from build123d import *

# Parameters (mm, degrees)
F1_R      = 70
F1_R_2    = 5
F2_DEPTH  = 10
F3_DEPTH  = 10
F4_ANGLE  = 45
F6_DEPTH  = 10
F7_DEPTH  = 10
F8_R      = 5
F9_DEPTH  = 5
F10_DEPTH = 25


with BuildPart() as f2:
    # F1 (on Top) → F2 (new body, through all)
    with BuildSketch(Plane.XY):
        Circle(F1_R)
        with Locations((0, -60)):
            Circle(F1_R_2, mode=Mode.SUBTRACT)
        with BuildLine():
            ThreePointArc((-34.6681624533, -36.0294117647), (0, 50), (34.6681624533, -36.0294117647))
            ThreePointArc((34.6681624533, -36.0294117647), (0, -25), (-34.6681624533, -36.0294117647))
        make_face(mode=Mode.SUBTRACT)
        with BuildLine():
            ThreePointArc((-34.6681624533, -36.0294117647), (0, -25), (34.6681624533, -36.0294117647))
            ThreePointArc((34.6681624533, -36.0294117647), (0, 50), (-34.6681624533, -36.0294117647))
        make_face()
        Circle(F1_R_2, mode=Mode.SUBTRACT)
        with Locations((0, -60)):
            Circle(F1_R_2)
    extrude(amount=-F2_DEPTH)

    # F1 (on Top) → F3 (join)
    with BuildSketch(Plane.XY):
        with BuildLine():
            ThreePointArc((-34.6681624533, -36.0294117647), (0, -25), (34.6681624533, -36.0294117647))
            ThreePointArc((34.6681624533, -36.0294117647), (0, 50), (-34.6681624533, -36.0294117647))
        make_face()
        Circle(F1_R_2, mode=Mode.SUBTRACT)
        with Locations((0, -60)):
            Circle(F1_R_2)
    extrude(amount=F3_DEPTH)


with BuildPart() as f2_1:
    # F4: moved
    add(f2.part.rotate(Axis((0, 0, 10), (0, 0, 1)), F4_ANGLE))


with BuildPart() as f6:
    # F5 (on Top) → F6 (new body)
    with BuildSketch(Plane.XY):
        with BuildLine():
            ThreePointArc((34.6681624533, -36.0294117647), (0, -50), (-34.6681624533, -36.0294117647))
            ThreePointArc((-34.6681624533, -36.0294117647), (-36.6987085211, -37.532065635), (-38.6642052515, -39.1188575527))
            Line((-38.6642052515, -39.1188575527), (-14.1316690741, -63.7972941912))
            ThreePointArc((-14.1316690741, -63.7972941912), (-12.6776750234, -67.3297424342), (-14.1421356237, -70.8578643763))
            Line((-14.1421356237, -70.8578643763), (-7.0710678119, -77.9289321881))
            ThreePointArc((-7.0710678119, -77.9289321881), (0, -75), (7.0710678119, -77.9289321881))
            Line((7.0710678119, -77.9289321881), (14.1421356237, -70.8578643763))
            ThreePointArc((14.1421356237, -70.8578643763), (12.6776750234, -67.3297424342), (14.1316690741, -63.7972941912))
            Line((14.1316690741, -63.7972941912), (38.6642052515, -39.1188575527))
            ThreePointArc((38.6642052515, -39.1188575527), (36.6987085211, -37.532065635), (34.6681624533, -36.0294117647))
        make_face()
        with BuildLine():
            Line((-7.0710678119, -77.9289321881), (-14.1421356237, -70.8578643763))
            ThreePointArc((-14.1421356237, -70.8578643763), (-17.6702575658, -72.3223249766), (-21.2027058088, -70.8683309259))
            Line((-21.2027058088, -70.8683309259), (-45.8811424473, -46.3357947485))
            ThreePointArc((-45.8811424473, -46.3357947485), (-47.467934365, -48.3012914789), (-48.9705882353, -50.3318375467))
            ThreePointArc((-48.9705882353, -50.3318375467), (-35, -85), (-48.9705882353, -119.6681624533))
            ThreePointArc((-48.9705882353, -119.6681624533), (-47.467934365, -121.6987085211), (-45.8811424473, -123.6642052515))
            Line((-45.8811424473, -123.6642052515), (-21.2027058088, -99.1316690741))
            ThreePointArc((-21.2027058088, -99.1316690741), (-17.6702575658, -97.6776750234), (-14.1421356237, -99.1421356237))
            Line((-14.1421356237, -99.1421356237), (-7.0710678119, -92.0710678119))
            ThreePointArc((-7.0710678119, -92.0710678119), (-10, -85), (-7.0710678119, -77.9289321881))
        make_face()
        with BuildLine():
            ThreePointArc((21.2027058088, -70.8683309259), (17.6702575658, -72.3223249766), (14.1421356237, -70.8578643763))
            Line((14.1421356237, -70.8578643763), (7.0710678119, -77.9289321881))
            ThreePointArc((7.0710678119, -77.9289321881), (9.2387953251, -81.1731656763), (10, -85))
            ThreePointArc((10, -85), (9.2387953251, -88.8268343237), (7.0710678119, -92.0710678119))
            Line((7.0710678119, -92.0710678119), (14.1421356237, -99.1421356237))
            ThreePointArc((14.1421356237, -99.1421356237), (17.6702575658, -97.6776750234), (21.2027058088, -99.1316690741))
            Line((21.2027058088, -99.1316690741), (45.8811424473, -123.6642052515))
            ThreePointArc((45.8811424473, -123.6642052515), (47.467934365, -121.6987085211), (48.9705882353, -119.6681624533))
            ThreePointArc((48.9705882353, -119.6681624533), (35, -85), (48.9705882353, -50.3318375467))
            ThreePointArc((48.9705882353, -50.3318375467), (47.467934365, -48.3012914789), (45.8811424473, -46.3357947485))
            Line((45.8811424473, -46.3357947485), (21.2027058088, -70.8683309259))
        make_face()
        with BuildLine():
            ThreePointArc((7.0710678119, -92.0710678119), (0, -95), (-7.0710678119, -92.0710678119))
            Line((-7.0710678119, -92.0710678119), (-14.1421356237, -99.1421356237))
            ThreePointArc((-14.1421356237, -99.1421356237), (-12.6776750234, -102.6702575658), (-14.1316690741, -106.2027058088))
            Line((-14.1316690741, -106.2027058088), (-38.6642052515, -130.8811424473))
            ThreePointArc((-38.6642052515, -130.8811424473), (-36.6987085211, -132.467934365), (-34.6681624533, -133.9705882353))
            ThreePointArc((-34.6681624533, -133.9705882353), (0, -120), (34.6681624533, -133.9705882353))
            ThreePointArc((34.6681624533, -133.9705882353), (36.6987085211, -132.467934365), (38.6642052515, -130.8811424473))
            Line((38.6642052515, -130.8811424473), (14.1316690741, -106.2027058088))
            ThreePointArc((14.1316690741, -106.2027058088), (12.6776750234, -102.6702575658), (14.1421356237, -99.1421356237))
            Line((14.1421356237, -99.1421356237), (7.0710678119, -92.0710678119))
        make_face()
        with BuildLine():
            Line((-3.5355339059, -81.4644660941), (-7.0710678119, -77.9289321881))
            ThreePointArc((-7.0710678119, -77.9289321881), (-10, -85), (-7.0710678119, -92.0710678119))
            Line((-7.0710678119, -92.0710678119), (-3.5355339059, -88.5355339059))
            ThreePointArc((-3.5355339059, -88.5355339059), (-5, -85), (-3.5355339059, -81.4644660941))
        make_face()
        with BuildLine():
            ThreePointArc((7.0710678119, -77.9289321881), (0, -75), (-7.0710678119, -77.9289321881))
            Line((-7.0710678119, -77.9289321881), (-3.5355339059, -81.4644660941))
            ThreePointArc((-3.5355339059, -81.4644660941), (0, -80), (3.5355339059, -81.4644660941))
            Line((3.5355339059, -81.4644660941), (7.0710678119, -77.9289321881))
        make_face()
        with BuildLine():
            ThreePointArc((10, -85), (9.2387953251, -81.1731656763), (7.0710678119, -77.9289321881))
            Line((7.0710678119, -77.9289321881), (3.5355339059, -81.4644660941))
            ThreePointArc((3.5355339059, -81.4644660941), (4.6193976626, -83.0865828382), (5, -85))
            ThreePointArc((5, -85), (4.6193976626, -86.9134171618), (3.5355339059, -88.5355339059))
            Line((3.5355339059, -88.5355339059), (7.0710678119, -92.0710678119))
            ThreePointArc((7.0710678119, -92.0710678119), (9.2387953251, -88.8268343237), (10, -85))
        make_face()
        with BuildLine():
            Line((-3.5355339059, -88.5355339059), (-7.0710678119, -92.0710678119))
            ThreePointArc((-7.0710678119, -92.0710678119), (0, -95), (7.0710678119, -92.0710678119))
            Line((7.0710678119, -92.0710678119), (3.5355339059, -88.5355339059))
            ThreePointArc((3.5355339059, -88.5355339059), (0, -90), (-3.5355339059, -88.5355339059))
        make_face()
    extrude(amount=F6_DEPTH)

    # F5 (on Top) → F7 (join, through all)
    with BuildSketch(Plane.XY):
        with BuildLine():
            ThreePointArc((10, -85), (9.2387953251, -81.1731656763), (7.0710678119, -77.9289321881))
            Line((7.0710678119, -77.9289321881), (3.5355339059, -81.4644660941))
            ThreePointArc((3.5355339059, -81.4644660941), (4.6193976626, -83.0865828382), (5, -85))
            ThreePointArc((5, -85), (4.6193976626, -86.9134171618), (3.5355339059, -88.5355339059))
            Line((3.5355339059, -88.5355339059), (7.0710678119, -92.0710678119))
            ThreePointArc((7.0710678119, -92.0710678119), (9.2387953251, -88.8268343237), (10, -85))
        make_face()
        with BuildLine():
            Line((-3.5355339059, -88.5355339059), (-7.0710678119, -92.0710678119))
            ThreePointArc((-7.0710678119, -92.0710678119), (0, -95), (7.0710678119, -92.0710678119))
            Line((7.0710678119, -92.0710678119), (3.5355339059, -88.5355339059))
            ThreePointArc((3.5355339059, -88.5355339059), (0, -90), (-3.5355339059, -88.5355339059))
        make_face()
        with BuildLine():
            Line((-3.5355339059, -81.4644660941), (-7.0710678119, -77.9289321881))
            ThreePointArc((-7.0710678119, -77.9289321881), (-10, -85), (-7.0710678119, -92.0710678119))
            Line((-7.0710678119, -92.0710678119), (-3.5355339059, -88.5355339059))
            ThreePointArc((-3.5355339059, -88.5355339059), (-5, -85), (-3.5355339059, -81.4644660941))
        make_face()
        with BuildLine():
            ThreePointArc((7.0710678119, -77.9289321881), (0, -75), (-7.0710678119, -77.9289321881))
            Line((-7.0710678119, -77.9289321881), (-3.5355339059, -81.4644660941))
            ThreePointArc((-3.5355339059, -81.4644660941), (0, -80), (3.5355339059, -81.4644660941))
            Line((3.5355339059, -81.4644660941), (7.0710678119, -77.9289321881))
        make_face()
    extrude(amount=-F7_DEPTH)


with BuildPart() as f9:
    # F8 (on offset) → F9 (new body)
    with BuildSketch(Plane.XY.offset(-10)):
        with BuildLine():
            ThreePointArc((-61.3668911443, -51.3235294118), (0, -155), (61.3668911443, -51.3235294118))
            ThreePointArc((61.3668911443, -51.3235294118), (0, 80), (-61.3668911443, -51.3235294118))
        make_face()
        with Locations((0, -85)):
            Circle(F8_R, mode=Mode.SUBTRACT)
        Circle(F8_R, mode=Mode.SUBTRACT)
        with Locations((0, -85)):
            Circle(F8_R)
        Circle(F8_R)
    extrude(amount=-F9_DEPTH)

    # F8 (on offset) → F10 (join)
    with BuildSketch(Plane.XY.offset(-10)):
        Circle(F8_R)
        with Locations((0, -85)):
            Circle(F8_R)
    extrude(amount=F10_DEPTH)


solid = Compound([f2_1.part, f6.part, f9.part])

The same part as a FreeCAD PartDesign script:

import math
import FreeCAD as App
import Part
import Sketcher

V = App.Vector

doc = App.newDocument("Part")
body = doc.addObject("PartDesign::Body", "Body")

# Sketch on XY plane
sketch1 = body.newObject("Sketcher::SketchObject", "Sketch")
sketch1.AttachmentSupport = (doc.getObject("XY_Plane"), [""])
sketch1.MapMode = "FlatFace"
sketch1.addGeometry([
    Part.Circle(V(0, 0, 0), V(0, 0, 1), 70),
    Part.Circle(V(0, 0, 0), V(0, 0, 1), 5),
], False)
sketch1.addConstraint([
    Sketcher.Constraint("Coincident", 0, 3, -1, 1),
    Sketcher.Constraint("Coincident", 1, 3, -1, 1),
    Sketcher.Constraint("Diameter", 0, 140.0),
    Sketcher.Constraint("Diameter", 1, 10.0),
])
pad1 = body.newObject("PartDesign::Pad", "Pad")
pad1.Profile = sketch1
pad1.Length = 10
pad1.Reversed = True

# Sketch on XY plane
sketch2 = body.newObject("Sketcher::SketchObject", "Sketch001")
sketch2.AttachmentSupport = (doc.getObject("XY_Plane"), [""])
sketch2.MapMode = "FlatFace"
sketch2.addGeometry([
    Part.ArcOfCircle(Part.Circle(V(0, -85, 0), V(0, 0, 1), 60), math.radians(55), math.radians(125)),
    Part.ArcOfCircle(Part.Circle(V(0, 0, 0), V(0, 0, 1), 50), math.radians(-46), math.radians(226)),
    Part.Circle(V(0, 0, 0), V(0, 0, 1), 5),
    Part.Circle(V(0, -60, 0), V(0, 0, 1), 5),
], False)
sketch2.addConstraint([
    Sketcher.Constraint("Coincident", 0, 1, 1, 1),
    Sketcher.Constraint("Coincident", 1, 2, 0, 2),
    Sketcher.Constraint("Coincident", 1, 3, -1, 1),
    Sketcher.Constraint("Coincident", 2, 3, -1, 1),
    Sketcher.Constraint("Equal", 2, 3),
    Sketcher.Constraint("PointOnObject", 0, 3, -2),
    Sketcher.Constraint("PointOnObject", 3, 3, -2),
    Sketcher.Constraint("Diameter", 2, 10.0),
    Sketcher.Constraint("Radius", 0, 60.0),
    Sketcher.Constraint("Radius", 1, 50.0),
    Sketcher.Constraint("DistanceY", 0, 3, -1, 1, 85.0),
    Sketcher.Constraint("DistanceY", 3, 3, -1, 1, 60.0),
])
pad2 = body.newObject("PartDesign::Pad", "Pad001")
pad2.Profile = sketch2
pad2.Length = 10
body2 = doc.addObject("PartDesign::Body", "Body001")
doc.recompute()

body.Placement = App.Placement(V(0, 0, 0), App.Rotation(V(0, 0, 1), 45))
boolean = body2.newObject("PartDesign::Boolean", "Boolean")
boolean.Type = "Fuse"
boolean.addObjects([body])
body3 = doc.addObject("PartDesign::Body", "Body002")

# Sketch on XY plane
sketch3 = body3.newObject("Sketcher::SketchObject", "Sketch002")
sketch3.AttachmentSupport = (doc.getObject("XY_Plane002"), [""])
sketch3.MapMode = "FlatFace"
sketch3.addGeometry([
    Part.ArcOfCircle(Part.Circle(V(0, 0, 0), V(0, 0, 1), 50), math.radians(-134), math.radians(-46)),  # 0
    Part.ArcOfCircle(Part.Circle(V(0, -85, 0), V(0, 0, 1), 60), math.radians(125.3), math.radians(130.12)),  # 1
    Part.LineSegment(V(-38.7, -39.1, 0), V(-14.1, -63.8, 0)),  # 2
    Part.ArcOfCircle(Part.Circle(V(-17.7, -67.3, 0), V(0, 0, 1), 5), math.radians(-45), math.radians(45)),  # 3
    Part.ArcOfCircle(Part.Circle(V(-17.7, -67.3, 0), V(0, 0, 1), 5), math.radians(-135), math.radians(-45)),  # 4
    Part.LineSegment(V(-21.2, -70.9, 0), V(-45.9, -46.3, 0)),  # 5
    Part.ArcOfCircle(Part.Circle(V(0, -85, 0), V(0, 0, 1), 60), math.radians(139.88), math.radians(144.7)),  # 6
    Part.ArcOfCircle(Part.Circle(V(-85, -85, 0), V(0, 0, 1), 50), math.radians(-44), math.radians(44)),  # 7
    Part.ArcOfCircle(Part.Circle(V(0, -85, 0), V(0, 0, 1), 60), math.radians(-144.7), math.radians(-139.88)),  # 8
    Part.LineSegment(V(-45.9, -123.7, 0), V(-21.2, -99.1, 0)),  # 9
    Part.ArcOfCircle(Part.Circle(V(-17.7, -102.7, 0), V(0, 0, 1), 5), math.radians(45), math.radians(135)),  # 10
    Part.ArcOfCircle(Part.Circle(V(-17.7, -102.7, 0), V(0, 0, 1), 5), math.radians(-45), math.radians(45)),  # 11
    Part.LineSegment(V(-14.1, -106.2, 0), V(-38.7, -130.9, 0)),  # 12
    Part.ArcOfCircle(Part.Circle(V(0, -85, 0), V(0, 0, 1), 60), math.radians(-130.12), math.radians(-125.3)),  # 13
    Part.ArcOfCircle(Part.Circle(V(0, -170, 0), V(0, 0, 1), 50), math.radians(46), math.radians(134)),  # 14
    Part.ArcOfCircle(Part.Circle(V(0, -85, 0), V(0, 0, 1), 60), math.radians(-54.7), math.radians(-49.88)),  # 15
    Part.LineSegment(V(38.7, -130.9, 0), V(14.1, -106.2, 0)),  # 16
    Part.ArcOfCircle(Part.Circle(V(17.7, -102.7, 0), V(0, 0, 1), 5), math.radians(135), math.radians(225)),  # 17
    Part.ArcOfCircle(Part.Circle(V(17.7, -102.7, 0), V(0, 0, 1), 5), math.radians(45), math.radians(135)),  # 18
    Part.LineSegment(V(21.2, -99.1, 0), V(45.9, -123.7, 0)),  # 19
    Part.ArcOfCircle(Part.Circle(V(0, -85, 0), V(0, 0, 1), 60), math.radians(-40.12), math.radians(-35.3)),  # 20
    Part.ArcOfCircle(Part.Circle(V(85, -85, 0), V(0, 0, 1), 50), math.radians(136), math.radians(224)),  # 21
    Part.ArcOfCircle(Part.Circle(V(0, -85, 0), V(0, 0, 1), 60), math.radians(35.3), math.radians(40.12)),  # 22
    Part.LineSegment(V(45.9, -46.3, 0), V(21.2, -70.9, 0)),  # 23
    Part.ArcOfCircle(Part.Circle(V(17.7, -67.3, 0), V(0, 0, 1), 5), math.radians(-135), math.radians(-45)),  # 24
    Part.ArcOfCircle(Part.Circle(V(17.7, -67.3, 0), V(0, 0, 1), 5), math.radians(135), math.radians(225)),  # 25
    Part.LineSegment(V(14.1, -63.8, 0), V(38.7, -39.1, 0)),  # 26
    Part.ArcOfCircle(Part.Circle(V(0, -85, 0), V(0, 0, 1), 60), math.radians(49.88), math.radians(54.7)),  # 27
    Part.ArcOfCircle(Part.Circle(V(0, -85, 0), V(0, 0, 1), 5), math.radians(135), math.radians(225)),  # 28
    Part.ArcOfCircle(Part.Circle(V(0, -85, 0), V(0, 0, 1), 5), math.radians(45), math.radians(135)),  # 29
    Part.ArcOfCircle(Part.Circle(V(0, -85, 0), V(0, 0, 1), 5), math.radians(0), math.radians(45)),  # 30
    Part.ArcOfCircle(Part.Circle(V(0, -85, 0), V(0, 0, 1), 5), math.radians(-45), math.radians(0)),  # 31
    Part.ArcOfCircle(Part.Circle(V(0, -85, 0), V(0, 0, 1), 5), math.radians(-135), math.radians(-45)),  # 32
], False)
sketch3.addConstraint([
    Sketcher.Constraint("Coincident", 0, 1, 1, 1),
    Sketcher.Constraint("Coincident", 1, 2, 2, 1),
    Sketcher.Constraint("Tangent", 2, 2, 3, 2),
    Sketcher.Constraint("Tangent", 3, 1, 4, 2),
    Sketcher.Constraint("Tangent", 4, 1, 5, 1),
    Sketcher.Constraint("Coincident", 5, 2, 6, 1),
    Sketcher.Constraint("Coincident", 6, 2, 7, 2),
    Sketcher.Constraint("Coincident", 7, 1, 8, 1),
    Sketcher.Constraint("Coincident", 8, 2, 9, 1),
    Sketcher.Constraint("Tangent", 9, 2, 10, 2),
    Sketcher.Constraint("Tangent", 10, 1, 11, 2),
    Sketcher.Constraint("Tangent", 11, 1, 12, 1),
    Sketcher.Constraint("Coincident", 12, 2, 13, 1),
    Sketcher.Constraint("Coincident", 13, 2, 14, 2),
    Sketcher.Constraint("Coincident", 14, 1, 15, 1),
    Sketcher.Constraint("Coincident", 15, 2, 16, 1),
    Sketcher.Constraint("Tangent", 16, 2, 17, 2),
    Sketcher.Constraint("Tangent", 17, 1, 18, 2),
    Sketcher.Constraint("Tangent", 18, 1, 19, 1),
    Sketcher.Constraint("Coincident", 19, 2, 20, 1),
    Sketcher.Constraint("Coincident", 20, 2, 21, 2),
    Sketcher.Constraint("Coincident", 21, 1, 22, 1),
    Sketcher.Constraint("Coincident", 22, 2, 23, 1),
    Sketcher.Constraint("Tangent", 23, 2, 24, 2),
    Sketcher.Constraint("Tangent", 24, 1, 25, 2),
    Sketcher.Constraint("Tangent", 25, 1, 26, 1),
    Sketcher.Constraint("Coincident", 26, 2, 27, 1),
    Sketcher.Constraint("Coincident", 27, 2, 0, 2),
    Sketcher.Constraint("Tangent", 28, 1, 29, 2),
    Sketcher.Constraint("Tangent", 29, 1, 30, 2),
    Sketcher.Constraint("Tangent", 30, 1, 31, 2),
    Sketcher.Constraint("Tangent", 31, 1, 32, 2),
    Sketcher.Constraint("Tangent", 32, 1, 28, 2),
    Sketcher.Constraint("Coincident", 0, 3, -1, 1),
    Sketcher.Constraint("Coincident", 6, 3, 1, 3),
    Sketcher.Constraint("Coincident", 8, 3, 1, 3),
    Sketcher.Constraint("Coincident", 13, 3, 1, 3),
    Sketcher.Constraint("Coincident", 15, 3, 1, 3),
    Sketcher.Constraint("Coincident", 20, 3, 1, 3),
    Sketcher.Constraint("Coincident", 22, 3, 1, 3),
    Sketcher.Constraint("Coincident", 27, 3, 1, 3),
    Sketcher.Constraint("Coincident", 28, 3, 1, 3),
    Sketcher.Constraint("Coincident", 30, 3, 1, 3),
    Sketcher.Constraint("Equal", 3, 4),
    Sketcher.Constraint("Equal", 1, 6),
    Sketcher.Constraint("Equal", 0, 7),
    Sketcher.Constraint("Equal", 6, 8),
    Sketcher.Constraint("Equal", 4, 10),
    Sketcher.Constraint("Equal", 10, 11),
    Sketcher.Constraint("Equal", 8, 13),
    Sketcher.Constraint("Equal", 7, 14),
    Sketcher.Constraint("Equal", 13, 15),
    Sketcher.Constraint("Equal", 11, 17),
    Sketcher.Constraint("Equal", 17, 18),
    Sketcher.Constraint("Equal", 15, 20),
    Sketcher.Constraint("Equal", 14, 21),
    Sketcher.Constraint("Equal", 20, 22),
    Sketcher.Constraint("Equal", 18, 24),
    Sketcher.Constraint("Equal", 24, 25),
    Sketcher.Constraint("Equal", 22, 27),
    Sketcher.Constraint("Equal", 25, 28),
    Sketcher.Constraint("Symmetric", 10, 3, 17, 3, -2),
    Sketcher.Constraint("Symmetric", 7, 3, 21, 3, -2),
    Sketcher.Constraint("Symmetric", 3, 3, 24, 3, -2),
    Sketcher.Constraint("Symmetric", 13, 2, 14, 1, -2),
    Sketcher.Constraint("Perpendicular", 2, 9),
    Sketcher.Constraint("Perpendicular", 5, 12),
    Sketcher.Constraint("Perpendicular", 9, 16),
    Sketcher.Constraint("Perpendicular", 12, 19),
    Sketcher.Constraint("Perpendicular", 16, 23),
    Sketcher.Constraint("Perpendicular", 19, 26),
    Sketcher.Constraint("Horizontal", 6, 3, 7, 3),
    Sketcher.Constraint("Horizontal", 12, 2, 15, 2),
    Sketcher.Constraint("Horizontal", 10, 1, 17, 1),
    Sketcher.Constraint("Horizontal", 3, 1, 24, 1),
    Sketcher.Constraint("Horizontal", 28, 1, 29, 1),
    Sketcher.Constraint("Horizontal", 32, 3, 30, 1),
    Sketcher.Constraint("Horizontal", 31, 1, 32, 1),
    Sketcher.Constraint("Vertical", 4, 3, 10, 3),
    Sketcher.Constraint("Vertical", 5, 2, 8, 2),
    Sketcher.Constraint("Vertical", 3, 1, 10, 1),
    Sketcher.Constraint("Vertical", 0, 1, 13, 2),
    Sketcher.Constraint("Vertical", 29, 1, 31, 1),
    Sketcher.Constraint("Equal", 2, 5),
    Sketcher.Constraint("Radius", 0, 50.0),
    Sketcher.Constraint("Radius", 1, 60.0),
    Sketcher.Constraint("Radius", 3, 5.0),
    Sketcher.Constraint("DistanceY", 1, 3, -1, 1, 85.0),
    Sketcher.Constraint("DistanceX", 7, 3, -1, 1, 85.0),
    Sketcher.Constraint("DistanceX", 3, 3, 2, 2, 3.546),
    Sketcher.Constraint("DistanceY", 7, 1, 3, 1, 48.810298),
    Sketcher.Constraint("DistanceX", 10, 1, 14, 1, 48.810298),
    Sketcher.Constraint("DistanceX", 28, 1, -1, 1, 3.535534),
])
pad3 = body3.newObject("PartDesign::Pad", "Pad002")
pad3.Profile = sketch3
pad3.Length = 10

# Sketch on XY plane
sketch4 = body3.newObject("Sketcher::SketchObject", "Sketch003")
sketch4.AttachmentSupport = (doc.getObject("XY_Plane002"), [""])
sketch4.MapMode = "FlatFace"
sketch4.addGeometry([
    Part.ArcOfCircle(Part.Circle(V(0, -85, 0), V(0, 0, 1), 10), math.radians(0), math.radians(45)),  # 0
    Part.ArcOfCircle(Part.Circle(V(0, -85, 0), V(0, 0, 1), 10), math.radians(45), math.radians(135)),  # 1
    Part.ArcOfCircle(Part.Circle(V(0, -85, 0), V(0, 0, 1), 10), math.radians(135), math.radians(225)),  # 2
    Part.ArcOfCircle(Part.Circle(V(0, -85, 0), V(0, 0, 1), 10), math.radians(-135), math.radians(-45)),  # 3
    Part.ArcOfCircle(Part.Circle(V(0, -85, 0), V(0, 0, 1), 10), math.radians(-45), math.radians(0)),  # 4
    Part.ArcOfCircle(Part.Circle(V(0, -85, 0), V(0, 0, 1), 5), math.radians(0), math.radians(45)),  # 5
    Part.ArcOfCircle(Part.Circle(V(0, -85, 0), V(0, 0, 1), 5), math.radians(-45), math.radians(0)),  # 6
    Part.ArcOfCircle(Part.Circle(V(0, -85, 0), V(0, 0, 1), 5), math.radians(-135), math.radians(-45)),  # 7
    Part.ArcOfCircle(Part.Circle(V(0, -85, 0), V(0, 0, 1), 5), math.radians(135), math.radians(225)),  # 8
    Part.ArcOfCircle(Part.Circle(V(0, -85, 0), V(0, 0, 1), 5), math.radians(45), math.radians(135)),  # 9
], False)
sketch4.addConstraint([
    Sketcher.Constraint("Tangent", 0, 2, 1, 1),
    Sketcher.Constraint("Tangent", 1, 2, 2, 1),
    Sketcher.Constraint("Tangent", 2, 2, 3, 1),
    Sketcher.Constraint("Tangent", 3, 2, 4, 1),
    Sketcher.Constraint("Tangent", 4, 2, 0, 1),
    Sketcher.Constraint("Tangent", 5, 1, 6, 2),
    Sketcher.Constraint("Tangent", 6, 1, 7, 2),
    Sketcher.Constraint("Tangent", 7, 1, 8, 2),
    Sketcher.Constraint("Tangent", 8, 1, 9, 2),
    Sketcher.Constraint("Tangent", 9, 1, 5, 2),
    Sketcher.Constraint("Coincident", 2, 3, 0, 3),
    Sketcher.Constraint("Coincident", 5, 3, 0, 3),
    Sketcher.Constraint("Coincident", 7, 3, 0, 3),
    Sketcher.Constraint("Symmetric", 0, 2, 1, 2, -2),
    Sketcher.Constraint("Horizontal", 2, 2, 3, 2),
    Sketcher.Constraint("Horizontal", 9, 3, 4, 2),
    Sketcher.Constraint("Horizontal", 4, 2, 5, 1),
    Sketcher.Constraint("Horizontal", 6, 1, 7, 1),
    Sketcher.Constraint("Horizontal", 8, 1, 9, 1),
    Sketcher.Constraint("Vertical", 1, 2, 2, 2),
    Sketcher.Constraint("Vertical", 7, 1, 8, 1),
    Sketcher.Constraint("Radius", 0, 10.0),
    Sketcher.Constraint("Radius", 5, 5.0),
    Sketcher.Constraint("DistanceY", 0, 3, -1, 1, 85.0),
    Sketcher.Constraint("DistanceX", -1, 1, 0, 2, 7.071068),
    Sketcher.Constraint("DistanceX", -1, 1, 6, 1, 3.535534),
])
pad4 = body3.newObject("PartDesign::Pad", "Pad003")
pad4.Profile = sketch4
pad4.Length = 10
pad4.Reversed = True
body4 = doc.addObject("PartDesign::Body", "Body003")

# Sketch on XY plane
sketch5 = body4.newObject("Sketcher::SketchObject", "Sketch004")
sketch5.AttachmentSupport = (doc.getObject("XY_Plane003"), [""])
sketch5.MapMode = "FlatFace"
sketch5.AttachmentOffset = App.Placement(V(0, 0, -10), App.Rotation())
sketch5.addGeometry([
    Part.ArcOfCircle(Part.Circle(V(0, -85, 0), V(0, 0, 1), 70), math.radians(151), math.radians(389)),
    Part.ArcOfCircle(Part.Circle(V(0, 0, 0), V(0, 0, 1), 80), math.radians(-40), math.radians(220)),
], False)
sketch5.addConstraint([
    Sketcher.Constraint("Coincident", 0, 1, 1, 2),
    Sketcher.Constraint("Coincident", 1, 1, 0, 2),
    Sketcher.Constraint("Coincident", 1, 3, -1, 1),
    Sketcher.Constraint("PointOnObject", 0, 3, -2),
    Sketcher.Constraint("Radius", 0, 70.0),
    Sketcher.Constraint("Radius", 1, 80.0),
    Sketcher.Constraint("DistanceY", 0, 3, -1, 1, 85.0),
])
pad5 = body4.newObject("PartDesign::Pad", "Pad004")
pad5.Profile = sketch5
pad5.Length = 5
pad5.Reversed = True

# Sketch on XY plane
sketch6 = body4.newObject("Sketcher::SketchObject", "Sketch005")
sketch6.AttachmentSupport = (doc.getObject("XY_Plane003"), [""])
sketch6.MapMode = "FlatFace"
sketch6.AttachmentOffset = App.Placement(V(0, 0, -10), App.Rotation())
sketch6.addGeometry([
    Part.Circle(V(0, 0, 0), V(0, 0, 1), 5),
    Part.Circle(V(0, -85, 0), V(0, 0, 1), 5),
], False)
sketch6.addConstraint([
    Sketcher.Constraint("Coincident", 0, 3, -1, 1),
    Sketcher.Constraint("Equal", 0, 1),
    Sketcher.Constraint("PointOnObject", 1, 3, -2),
    Sketcher.Constraint("Diameter", 0, 10.0),
    Sketcher.Constraint("DistanceY", 1, 3, -1, 1, 85.0),
])
pad6 = body4.newObject("PartDesign::Pad", "Pad005")
pad6.Profile = sketch6
pad6.Length = 25

doc.recompute()
